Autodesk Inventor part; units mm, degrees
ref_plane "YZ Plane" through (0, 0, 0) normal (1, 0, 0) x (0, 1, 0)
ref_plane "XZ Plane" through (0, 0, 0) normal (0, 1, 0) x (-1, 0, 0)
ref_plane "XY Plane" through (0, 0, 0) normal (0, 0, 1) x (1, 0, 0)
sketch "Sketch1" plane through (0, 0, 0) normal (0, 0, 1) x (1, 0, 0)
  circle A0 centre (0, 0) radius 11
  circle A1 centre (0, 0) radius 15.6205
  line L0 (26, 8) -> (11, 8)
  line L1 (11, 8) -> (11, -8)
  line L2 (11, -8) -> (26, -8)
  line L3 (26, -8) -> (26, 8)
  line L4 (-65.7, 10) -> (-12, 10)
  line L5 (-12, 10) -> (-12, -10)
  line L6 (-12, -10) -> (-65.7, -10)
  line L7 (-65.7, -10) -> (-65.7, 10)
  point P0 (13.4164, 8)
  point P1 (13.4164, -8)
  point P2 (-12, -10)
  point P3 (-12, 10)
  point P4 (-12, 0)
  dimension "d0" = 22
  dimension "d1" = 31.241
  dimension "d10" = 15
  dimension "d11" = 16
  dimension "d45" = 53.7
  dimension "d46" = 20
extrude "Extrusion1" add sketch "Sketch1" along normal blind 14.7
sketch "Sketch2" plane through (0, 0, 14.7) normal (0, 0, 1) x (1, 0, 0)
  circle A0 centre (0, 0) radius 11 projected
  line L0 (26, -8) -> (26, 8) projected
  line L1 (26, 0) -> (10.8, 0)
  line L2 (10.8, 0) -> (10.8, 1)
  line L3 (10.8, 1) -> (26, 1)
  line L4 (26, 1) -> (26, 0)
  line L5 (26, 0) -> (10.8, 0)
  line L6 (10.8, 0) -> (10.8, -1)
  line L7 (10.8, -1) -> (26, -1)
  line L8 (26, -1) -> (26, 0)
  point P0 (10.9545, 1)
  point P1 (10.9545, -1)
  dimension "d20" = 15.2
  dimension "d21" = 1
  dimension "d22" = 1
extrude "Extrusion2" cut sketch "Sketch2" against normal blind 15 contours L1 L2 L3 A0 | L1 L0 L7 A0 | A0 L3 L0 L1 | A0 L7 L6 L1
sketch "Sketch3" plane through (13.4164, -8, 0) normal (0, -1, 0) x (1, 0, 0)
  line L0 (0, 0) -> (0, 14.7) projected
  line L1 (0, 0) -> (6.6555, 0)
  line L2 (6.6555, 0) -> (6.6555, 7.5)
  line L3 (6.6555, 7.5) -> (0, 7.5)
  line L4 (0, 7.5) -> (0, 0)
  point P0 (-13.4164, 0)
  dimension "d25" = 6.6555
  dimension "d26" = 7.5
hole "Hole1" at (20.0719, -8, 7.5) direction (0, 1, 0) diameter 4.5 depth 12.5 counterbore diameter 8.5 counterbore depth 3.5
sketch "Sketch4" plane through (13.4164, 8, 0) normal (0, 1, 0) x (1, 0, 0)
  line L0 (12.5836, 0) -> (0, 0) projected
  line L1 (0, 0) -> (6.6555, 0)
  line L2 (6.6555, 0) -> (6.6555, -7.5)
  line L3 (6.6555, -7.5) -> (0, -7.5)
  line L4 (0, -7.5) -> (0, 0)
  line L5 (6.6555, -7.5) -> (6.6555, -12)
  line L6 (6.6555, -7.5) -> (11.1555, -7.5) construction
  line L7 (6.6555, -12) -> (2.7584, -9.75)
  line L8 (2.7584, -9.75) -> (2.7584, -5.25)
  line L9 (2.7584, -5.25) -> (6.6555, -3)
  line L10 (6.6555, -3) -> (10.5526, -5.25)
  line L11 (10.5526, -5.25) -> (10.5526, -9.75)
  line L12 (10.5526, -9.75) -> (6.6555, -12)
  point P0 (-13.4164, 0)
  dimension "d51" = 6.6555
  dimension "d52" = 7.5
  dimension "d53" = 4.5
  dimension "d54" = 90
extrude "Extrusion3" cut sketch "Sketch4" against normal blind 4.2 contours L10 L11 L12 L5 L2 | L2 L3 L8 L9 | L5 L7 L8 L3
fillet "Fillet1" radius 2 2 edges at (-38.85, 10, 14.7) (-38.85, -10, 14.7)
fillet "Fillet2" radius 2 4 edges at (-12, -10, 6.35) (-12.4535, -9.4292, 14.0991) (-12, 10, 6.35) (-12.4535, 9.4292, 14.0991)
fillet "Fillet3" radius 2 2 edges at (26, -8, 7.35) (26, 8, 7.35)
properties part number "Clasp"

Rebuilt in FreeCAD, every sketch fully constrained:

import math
import FreeCAD as App
import Part
import Sketcher

V = App.Vector
Q = App.Units.Quantity


def edges_at(feature, points):
    """Names of the edges that pass closest to the given points."""
    edges = feature.Shape.Edges
    near = lambda p: min(range(len(edges)), key=lambda i: edges[i].distToShape(Part.Vertex(*p))[0])
    return sorted({f"Edge{near(p) + 1}" for p in points})

doc = App.newDocument("Part")
body = doc.addObject("PartDesign::Body", "Body")

sketch1 = doc.addObject("Sketcher::SketchObject", "Sketch")
body.addObject(sketch1)
sketch1.AttachmentSupport = (doc.XY_Plane, [""])
sketch1.MapMode = "FlatFace"
sketch1.addGeometry([
    Part.ArcOfCircle(Part.Circle(V(0, 0, 0), V(0, 0, 1), 16), math.radians(-140), math.radians(-31)),
    Part.LineSegment(V(13, -8, 0), V(26, -8, 0)),
    Part.LineSegment(V(26, -8, 0), V(26, 8, 0)),
    Part.LineSegment(V(26, 8, 0), V(13, 8, 0)),
    Part.ArcOfCircle(Part.Circle(V(0, 0, 0), V(0, 0, 1), 16), math.radians(31), math.radians(140)),
    Part.LineSegment(V(-12, 10, 0), V(-66, 10, 0)),
    Part.LineSegment(V(-66, 10, 0), V(-66, -10, 0)),
    Part.LineSegment(V(-66, -10, 0), V(-12, -10, 0)),
    Part.Circle(V(0, 0, 0), V(0, 0, 1), 11),
], False)
sketch1.addConstraint([
    Sketcher.Constraint("Coincident", 0, 2, 1, 1),
    Sketcher.Constraint("Coincident", 1, 2, 2, 1),
    Sketcher.Constraint("Coincident", 2, 2, 3, 1),
    Sketcher.Constraint("Coincident", 3, 2, 4, 1),
    Sketcher.Constraint("Coincident", 4, 2, 5, 1),
    Sketcher.Constraint("Coincident", 5, 2, 6, 1),
    Sketcher.Constraint("Coincident", 6, 2, 7, 1),
    Sketcher.Constraint("Coincident", 7, 2, 0, 1),
    Sketcher.Constraint("Horizontal", 1),
    Sketcher.Constraint("Vertical", 2),
    Sketcher.Constraint("Horizontal", 3),
    Sketcher.Constraint("Horizontal", 5),
    Sketcher.Constraint("Vertical", 6),
    Sketcher.Constraint("Horizontal", 7),
    Sketcher.Constraint("Coincident", 0, 3, -1, 1),
    Sketcher.Constraint("Coincident", 4, 3, -1, 1),
    Sketcher.Constraint("Coincident", 8, 3, -1, 1),
    Sketcher.Constraint("Equal", 0, 4),
    Sketcher.Constraint("Vertical", 0, 2, 3, 2),
    Sketcher.Constraint("Vertical", 4, 2, 7, 2),
    Sketcher.Constraint("Diameter", 8, Q("22 mm")),
    Sketcher.Constraint("DistanceY", 2, 1, 2, 2, Q("16 mm")),
    Sketcher.Constraint("DistanceY", 6, 2, 6, 1, Q("20 mm")),
    Sketcher.Constraint("DistanceX", 5, 2, 5, 1, Q("53.7 mm")),
    Sketcher.Constraint("Radius", 0, Q("15.6205 mm")),
    Sketcher.Constraint("DistanceX", -1, 1, 1, 2, Q("26 mm")),
])
pad1 = doc.addObject("PartDesign::Pad", "Pad")
body.addObject(pad1)
pad1.Profile = sketch1
pad1.Length = 14.7

sketch2 = doc.addObject("Sketcher::SketchObject", "Sketch001")
body.addObject(sketch2)
sketch2.AttachmentSupport = (doc.XY_Plane, [""])
sketch2.MapMode = "FlatFace"
sketch2.AttachmentOffset = App.Placement(V(0, 0, 14.7), App.Rotation())
sketch2.addGeometry([
    Part.LineSegment(V(10.8, 1, 0), V(10.8, -1, 0)),
    Part.LineSegment(V(10.8, -1, 0), V(26, -1, 0)),
    Part.LineSegment(V(26, -1, 0), V(26, 1, 0)),
    Part.LineSegment(V(26, 1, 0), V(10.8, 1, 0)),
], False)
sketch2.addConstraint([
    Sketcher.Constraint("Coincident", 0, 2, 1, 1),
    Sketcher.Constraint("Coincident", 1, 2, 2, 1),
    Sketcher.Constraint("Coincident", 2, 2, 3, 1),
    Sketcher.Constraint("Coincident", 3, 2, 0, 1),
    Sketcher.Constraint("Vertical", 0),
    Sketcher.Constraint("Horizontal", 1),
    Sketcher.Constraint("Vertical", 2),
    Sketcher.Constraint("Horizontal", 3),
    Sketcher.Constraint("DistanceX", 1, 1, 1, 2, Q("15.2 mm")),
    Sketcher.Constraint("DistanceY", 0, 2, -1, 1, Q("1 mm")),
    Sketcher.Constraint("DistanceY", -1, 1, 2, 2, Q("1 mm")),
    Sketcher.Constraint("DistanceX", -1, 1, 1, 2, Q("26 mm")),
])
pocket1 = doc.addObject("PartDesign::Pocket", "Pocket")
body.addObject(pocket1)
pocket1.Profile = sketch2
pocket1.Length = 15

sketch3 = doc.addObject("Sketcher::SketchObject", "Sketch002")
body.addObject(sketch3)
sketch3.AttachmentSupport = (doc.XZ_Plane, [""])
sketch3.MapMode = "FlatFace"
sketch3.AttachmentOffset = App.Placement(V(0, 0, 8), App.Rotation())
sketch3.addGeometry(Part.Circle(V(20.1, 7.5, 0), V(0, 0, 1), 2.2), False)
sketch3.addConstraint([
    Sketcher.Constraint("Diameter", 0, Q("4.5 mm")),
    Sketcher.Constraint("DistanceY", -1, 1, 0, 3, Q("7.5 mm")),
    Sketcher.Constraint("DistanceX", -1, 1, 0, 3, Q("20.072 mm")),
])
doc.recompute()
hole = doc.addObject("PartDesign::Hole", "Hole")
body.addObject(hole)
hole.Profile = sketch3
hole.ThreadType = "None"
hole.Diameter = 4.5
hole.DepthType = "Dimension"
hole.Depth = 12.5
hole.DrillPoint = "Flat"
hole.HoleCutType = "Counterbore"
hole.HoleCutDiameter = 8.5
hole.HoleCutDepth = 3.5

sketch4 = doc.addObject("Sketcher::SketchObject", "Sketch003")
body.addObject(sketch4)
sketch4.AttachmentSupport = (doc.XZ_Plane, [""])
sketch4.MapMode = "FlatFace"
sketch4.AttachmentOffset = App.Placement(V(0, 0, -8), App.Rotation())
sketch4.addGeometry([
    Part.LineSegment(V(24, 5.2, 0), V(20.1, 3, 0)),
    Part.LineSegment(V(20.1, 3, 0), V(16.2, 5.2, 0)),
    Part.LineSegment(V(16.2, 5.2, 0), V(16.2, 9.8, 0)),
    Part.LineSegment(V(16.2, 9.8, 0), V(20.1, 12, 0)),
    Part.LineSegment(V(20.1, 12, 0), V(24, 9.8, 0)),
    Part.LineSegment(V(24, 9.8, 0), V(24, 5.2, 0)),
], False)
sketch4.addConstraint([
    Sketcher.Constraint("Coincident", 0, 2, 1, 1),
    Sketcher.Constraint("Coincident", 1, 2, 2, 1),
    Sketcher.Constraint("Coincident", 2, 2, 3, 1),
    Sketcher.Constraint("Coincident", 3, 2, 4, 1),
    Sketcher.Constraint("Coincident", 4, 2, 5, 1),
    Sketcher.Constraint("Coincident", 5, 2, 0, 1),
    Sketcher.Constraint("Vertical", 2),
    Sketcher.Constraint("Vertical", 5),
    Sketcher.Constraint("Parallel", 0, 3),
    Sketcher.Constraint("Parallel", 1, 4),
    Sketcher.Constraint("Horizontal", 2, 2, 4, 2),
    Sketcher.Constraint("Horizontal", 1, 2, 5, 2),
    Sketcher.Constraint("Vertical", 0, 2, 3, 2),
    Sketcher.Constraint("DistanceY", 2, 1, 2, 2, Q("4.5 mm")),
    Sketcher.Constraint("Distance", 0, Q("4.5 mm")),
    Sketcher.Constraint("Angle", 0, Q("-150 deg")),
    Sketcher.Constraint("DistanceY", -1, 1, 0, 2, Q("3 mm")),
    Sketcher.Constraint("DistanceX", -1, 1, 0, 2, Q("20.072 mm")),
])
pocket2 = doc.addObject("PartDesign::Pocket", "Pocket001")
body.addObject(pocket2)
pocket2.Profile = sketch4
pocket2.Length = 4.2
pocket2.Reversed = True
doc.recompute()

fillet = doc.addObject("PartDesign::Fillet", "Fillet")
body.addObject(fillet)
fillet.Base = (pocket2, edges_at(pocket2, [(-38.85, 10, 14.7), (-38.85, -10, 14.7)]))
fillet.Radius = 2
doc.recompute()

fillet2 = doc.addObject("PartDesign::Fillet", "Fillet001")
body.addObject(fillet2)
fillet2.Base = (fillet, edges_at(fillet, [
    (-12, -10, 6.35),
    (-12.454, -9.429, 14.099),
    (-12, 10, 6.35),
    (-12.454, 9.429, 14.099),
]))
fillet2.Radius = 2
doc.recompute()

fillet3 = doc.addObject("PartDesign::Fillet", "Fillet002")
body.addObject(fillet3)
fillet3.Base = (fillet2, edges_at(fillet2, [(26, -8, 7.35), (26, 8, 7.35)]))
fillet3.Radius = 2

doc.recompute()
